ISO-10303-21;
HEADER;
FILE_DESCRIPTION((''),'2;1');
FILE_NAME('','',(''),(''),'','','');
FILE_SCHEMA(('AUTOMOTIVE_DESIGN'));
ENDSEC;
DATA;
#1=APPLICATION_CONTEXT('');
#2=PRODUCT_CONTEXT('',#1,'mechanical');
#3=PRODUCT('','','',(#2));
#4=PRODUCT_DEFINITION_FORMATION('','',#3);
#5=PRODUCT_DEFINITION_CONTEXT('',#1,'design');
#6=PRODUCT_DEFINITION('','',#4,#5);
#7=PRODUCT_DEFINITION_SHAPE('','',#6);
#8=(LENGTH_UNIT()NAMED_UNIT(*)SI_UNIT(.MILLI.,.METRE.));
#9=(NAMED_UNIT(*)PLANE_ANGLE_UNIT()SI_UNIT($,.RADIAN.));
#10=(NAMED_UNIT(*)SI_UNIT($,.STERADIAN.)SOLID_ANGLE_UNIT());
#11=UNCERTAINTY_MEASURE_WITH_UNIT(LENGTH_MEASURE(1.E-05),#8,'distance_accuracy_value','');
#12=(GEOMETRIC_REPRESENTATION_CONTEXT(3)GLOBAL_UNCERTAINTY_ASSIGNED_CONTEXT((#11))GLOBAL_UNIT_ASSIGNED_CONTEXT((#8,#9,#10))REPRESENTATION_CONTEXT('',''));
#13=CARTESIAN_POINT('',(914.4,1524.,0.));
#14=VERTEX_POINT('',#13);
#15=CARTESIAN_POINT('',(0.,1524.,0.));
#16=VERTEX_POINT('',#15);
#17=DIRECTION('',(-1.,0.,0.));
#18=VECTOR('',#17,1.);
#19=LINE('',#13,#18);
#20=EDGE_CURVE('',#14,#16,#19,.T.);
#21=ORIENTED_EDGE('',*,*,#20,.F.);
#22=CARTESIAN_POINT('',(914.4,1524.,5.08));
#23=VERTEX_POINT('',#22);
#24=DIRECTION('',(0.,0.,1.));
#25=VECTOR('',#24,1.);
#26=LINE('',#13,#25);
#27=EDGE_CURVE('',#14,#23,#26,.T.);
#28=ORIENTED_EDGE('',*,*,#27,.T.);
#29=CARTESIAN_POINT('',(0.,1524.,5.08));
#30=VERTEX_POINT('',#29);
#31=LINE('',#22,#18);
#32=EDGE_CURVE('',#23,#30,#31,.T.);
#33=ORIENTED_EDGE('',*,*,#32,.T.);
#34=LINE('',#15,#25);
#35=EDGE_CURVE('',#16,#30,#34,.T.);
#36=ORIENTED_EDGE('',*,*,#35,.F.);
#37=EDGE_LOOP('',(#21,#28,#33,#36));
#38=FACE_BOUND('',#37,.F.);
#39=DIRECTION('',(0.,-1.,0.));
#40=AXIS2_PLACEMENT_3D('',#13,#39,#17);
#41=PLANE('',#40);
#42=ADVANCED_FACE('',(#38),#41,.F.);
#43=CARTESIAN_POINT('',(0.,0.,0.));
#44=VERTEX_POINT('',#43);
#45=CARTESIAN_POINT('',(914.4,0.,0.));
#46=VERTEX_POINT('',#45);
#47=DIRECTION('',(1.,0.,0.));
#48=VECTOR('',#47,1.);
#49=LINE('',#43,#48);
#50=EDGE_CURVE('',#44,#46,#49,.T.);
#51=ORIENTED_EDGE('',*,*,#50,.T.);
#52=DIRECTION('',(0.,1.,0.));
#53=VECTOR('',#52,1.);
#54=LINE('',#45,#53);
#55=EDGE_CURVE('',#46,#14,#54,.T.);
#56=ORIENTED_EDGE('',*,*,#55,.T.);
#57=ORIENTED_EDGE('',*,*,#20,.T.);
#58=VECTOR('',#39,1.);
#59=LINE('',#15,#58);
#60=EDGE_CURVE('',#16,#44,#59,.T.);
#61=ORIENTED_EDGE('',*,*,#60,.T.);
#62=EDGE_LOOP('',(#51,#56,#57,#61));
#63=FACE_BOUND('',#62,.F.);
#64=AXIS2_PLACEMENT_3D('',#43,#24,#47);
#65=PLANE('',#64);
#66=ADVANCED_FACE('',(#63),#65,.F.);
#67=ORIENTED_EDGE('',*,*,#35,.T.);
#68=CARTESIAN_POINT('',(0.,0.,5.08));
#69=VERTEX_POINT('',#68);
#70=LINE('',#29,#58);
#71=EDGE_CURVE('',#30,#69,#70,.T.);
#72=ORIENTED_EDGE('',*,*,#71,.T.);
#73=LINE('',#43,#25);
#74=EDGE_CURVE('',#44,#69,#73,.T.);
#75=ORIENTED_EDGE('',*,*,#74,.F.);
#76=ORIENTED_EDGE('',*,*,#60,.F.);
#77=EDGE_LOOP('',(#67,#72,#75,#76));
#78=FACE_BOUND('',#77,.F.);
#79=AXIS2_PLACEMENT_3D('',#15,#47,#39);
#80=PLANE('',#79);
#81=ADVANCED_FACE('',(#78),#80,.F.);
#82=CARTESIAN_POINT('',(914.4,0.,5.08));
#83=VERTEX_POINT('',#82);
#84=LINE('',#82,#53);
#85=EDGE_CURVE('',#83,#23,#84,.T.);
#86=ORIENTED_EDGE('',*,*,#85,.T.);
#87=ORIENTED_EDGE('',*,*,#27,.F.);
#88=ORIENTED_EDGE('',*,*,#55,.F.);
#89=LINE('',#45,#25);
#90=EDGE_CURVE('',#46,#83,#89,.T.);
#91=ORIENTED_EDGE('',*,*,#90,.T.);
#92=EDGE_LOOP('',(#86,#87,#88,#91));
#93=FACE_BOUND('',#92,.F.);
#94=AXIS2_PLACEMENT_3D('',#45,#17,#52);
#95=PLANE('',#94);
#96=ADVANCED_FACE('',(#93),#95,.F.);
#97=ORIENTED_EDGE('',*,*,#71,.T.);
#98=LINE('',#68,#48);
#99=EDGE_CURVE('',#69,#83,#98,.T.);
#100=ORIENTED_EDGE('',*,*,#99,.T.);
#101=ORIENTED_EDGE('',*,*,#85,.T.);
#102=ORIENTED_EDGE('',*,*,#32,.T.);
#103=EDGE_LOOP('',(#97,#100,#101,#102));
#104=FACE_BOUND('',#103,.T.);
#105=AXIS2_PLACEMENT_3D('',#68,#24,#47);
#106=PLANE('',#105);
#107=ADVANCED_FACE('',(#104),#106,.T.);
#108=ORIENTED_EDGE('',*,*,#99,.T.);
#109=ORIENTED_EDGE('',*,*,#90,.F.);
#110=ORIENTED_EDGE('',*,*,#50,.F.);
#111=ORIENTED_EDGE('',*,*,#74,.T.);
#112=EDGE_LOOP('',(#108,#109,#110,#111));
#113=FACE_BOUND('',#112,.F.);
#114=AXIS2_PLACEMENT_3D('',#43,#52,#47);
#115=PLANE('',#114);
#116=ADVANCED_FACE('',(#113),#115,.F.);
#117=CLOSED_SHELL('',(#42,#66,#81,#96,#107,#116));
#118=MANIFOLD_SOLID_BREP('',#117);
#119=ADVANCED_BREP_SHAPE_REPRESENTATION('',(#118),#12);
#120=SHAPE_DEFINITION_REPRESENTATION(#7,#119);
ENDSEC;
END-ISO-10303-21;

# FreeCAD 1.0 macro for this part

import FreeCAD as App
import Part
import Sketcher

V = App.Vector
Q = App.Units.Quantity

doc = App.newDocument("Part")
body = doc.addObject("PartDesign::Body", "Body")

# Sketch on XY plane
sketch1 = doc.addObject("Sketcher::SketchObject", "Sketch")
body.addObject(sketch1)
sketch1.AttachmentSupport = (doc.XY_Plane, [""])
sketch1.MapMode = "FlatFace"
sketch1.addGeometry(Part.LineSegment(V(0, 1524, 0), V(0, 0, 0)), False)
sketch1.addGeometry(Part.LineSegment(V(0, 0, 0), V(914, 0, 0)), False)
sketch1.addGeometry(Part.LineSegment(V(914, 0, 0), V(914, 1524, 0)), False)
sketch1.addGeometry(Part.LineSegment(V(914, 1524, 0), V(0, 1524, 0)), False)
sketch1.addConstraint(Sketcher.Constraint("Coincident", 0, 2, 1, 1))
sketch1.addConstraint(Sketcher.Constraint("Coincident", 1, 2, 2, 1))
sketch1.addConstraint(Sketcher.Constraint("Coincident", 2, 2, 3, 1))
sketch1.addConstraint(Sketcher.Constraint("Coincident", 3, 2, 0, 1))
sketch1.addConstraint(Sketcher.Constraint("Vertical", 0))
sketch1.addConstraint(Sketcher.Constraint("Horizontal", 1))
sketch1.addConstraint(Sketcher.Constraint("Vertical", 2))
sketch1.addConstraint(Sketcher.Constraint("Horizontal", 3))
sketch1.addConstraint(Sketcher.Constraint("Coincident", 0, 2, -1, 1))
sketch1.addConstraint(Sketcher.Constraint("DistanceX", 1, 1, 1, 2, Q("36 in")))
sketch1.addConstraint(Sketcher.Constraint("DistanceY", 0, 2, 0, 1, Q("60 in")))
pad1 = doc.addObject("PartDesign::Pad", "Pad")
body.addObject(pad1)
pad1.Profile = sketch1
pad1.Length = Q("0.2 in")

doc.recompute()
